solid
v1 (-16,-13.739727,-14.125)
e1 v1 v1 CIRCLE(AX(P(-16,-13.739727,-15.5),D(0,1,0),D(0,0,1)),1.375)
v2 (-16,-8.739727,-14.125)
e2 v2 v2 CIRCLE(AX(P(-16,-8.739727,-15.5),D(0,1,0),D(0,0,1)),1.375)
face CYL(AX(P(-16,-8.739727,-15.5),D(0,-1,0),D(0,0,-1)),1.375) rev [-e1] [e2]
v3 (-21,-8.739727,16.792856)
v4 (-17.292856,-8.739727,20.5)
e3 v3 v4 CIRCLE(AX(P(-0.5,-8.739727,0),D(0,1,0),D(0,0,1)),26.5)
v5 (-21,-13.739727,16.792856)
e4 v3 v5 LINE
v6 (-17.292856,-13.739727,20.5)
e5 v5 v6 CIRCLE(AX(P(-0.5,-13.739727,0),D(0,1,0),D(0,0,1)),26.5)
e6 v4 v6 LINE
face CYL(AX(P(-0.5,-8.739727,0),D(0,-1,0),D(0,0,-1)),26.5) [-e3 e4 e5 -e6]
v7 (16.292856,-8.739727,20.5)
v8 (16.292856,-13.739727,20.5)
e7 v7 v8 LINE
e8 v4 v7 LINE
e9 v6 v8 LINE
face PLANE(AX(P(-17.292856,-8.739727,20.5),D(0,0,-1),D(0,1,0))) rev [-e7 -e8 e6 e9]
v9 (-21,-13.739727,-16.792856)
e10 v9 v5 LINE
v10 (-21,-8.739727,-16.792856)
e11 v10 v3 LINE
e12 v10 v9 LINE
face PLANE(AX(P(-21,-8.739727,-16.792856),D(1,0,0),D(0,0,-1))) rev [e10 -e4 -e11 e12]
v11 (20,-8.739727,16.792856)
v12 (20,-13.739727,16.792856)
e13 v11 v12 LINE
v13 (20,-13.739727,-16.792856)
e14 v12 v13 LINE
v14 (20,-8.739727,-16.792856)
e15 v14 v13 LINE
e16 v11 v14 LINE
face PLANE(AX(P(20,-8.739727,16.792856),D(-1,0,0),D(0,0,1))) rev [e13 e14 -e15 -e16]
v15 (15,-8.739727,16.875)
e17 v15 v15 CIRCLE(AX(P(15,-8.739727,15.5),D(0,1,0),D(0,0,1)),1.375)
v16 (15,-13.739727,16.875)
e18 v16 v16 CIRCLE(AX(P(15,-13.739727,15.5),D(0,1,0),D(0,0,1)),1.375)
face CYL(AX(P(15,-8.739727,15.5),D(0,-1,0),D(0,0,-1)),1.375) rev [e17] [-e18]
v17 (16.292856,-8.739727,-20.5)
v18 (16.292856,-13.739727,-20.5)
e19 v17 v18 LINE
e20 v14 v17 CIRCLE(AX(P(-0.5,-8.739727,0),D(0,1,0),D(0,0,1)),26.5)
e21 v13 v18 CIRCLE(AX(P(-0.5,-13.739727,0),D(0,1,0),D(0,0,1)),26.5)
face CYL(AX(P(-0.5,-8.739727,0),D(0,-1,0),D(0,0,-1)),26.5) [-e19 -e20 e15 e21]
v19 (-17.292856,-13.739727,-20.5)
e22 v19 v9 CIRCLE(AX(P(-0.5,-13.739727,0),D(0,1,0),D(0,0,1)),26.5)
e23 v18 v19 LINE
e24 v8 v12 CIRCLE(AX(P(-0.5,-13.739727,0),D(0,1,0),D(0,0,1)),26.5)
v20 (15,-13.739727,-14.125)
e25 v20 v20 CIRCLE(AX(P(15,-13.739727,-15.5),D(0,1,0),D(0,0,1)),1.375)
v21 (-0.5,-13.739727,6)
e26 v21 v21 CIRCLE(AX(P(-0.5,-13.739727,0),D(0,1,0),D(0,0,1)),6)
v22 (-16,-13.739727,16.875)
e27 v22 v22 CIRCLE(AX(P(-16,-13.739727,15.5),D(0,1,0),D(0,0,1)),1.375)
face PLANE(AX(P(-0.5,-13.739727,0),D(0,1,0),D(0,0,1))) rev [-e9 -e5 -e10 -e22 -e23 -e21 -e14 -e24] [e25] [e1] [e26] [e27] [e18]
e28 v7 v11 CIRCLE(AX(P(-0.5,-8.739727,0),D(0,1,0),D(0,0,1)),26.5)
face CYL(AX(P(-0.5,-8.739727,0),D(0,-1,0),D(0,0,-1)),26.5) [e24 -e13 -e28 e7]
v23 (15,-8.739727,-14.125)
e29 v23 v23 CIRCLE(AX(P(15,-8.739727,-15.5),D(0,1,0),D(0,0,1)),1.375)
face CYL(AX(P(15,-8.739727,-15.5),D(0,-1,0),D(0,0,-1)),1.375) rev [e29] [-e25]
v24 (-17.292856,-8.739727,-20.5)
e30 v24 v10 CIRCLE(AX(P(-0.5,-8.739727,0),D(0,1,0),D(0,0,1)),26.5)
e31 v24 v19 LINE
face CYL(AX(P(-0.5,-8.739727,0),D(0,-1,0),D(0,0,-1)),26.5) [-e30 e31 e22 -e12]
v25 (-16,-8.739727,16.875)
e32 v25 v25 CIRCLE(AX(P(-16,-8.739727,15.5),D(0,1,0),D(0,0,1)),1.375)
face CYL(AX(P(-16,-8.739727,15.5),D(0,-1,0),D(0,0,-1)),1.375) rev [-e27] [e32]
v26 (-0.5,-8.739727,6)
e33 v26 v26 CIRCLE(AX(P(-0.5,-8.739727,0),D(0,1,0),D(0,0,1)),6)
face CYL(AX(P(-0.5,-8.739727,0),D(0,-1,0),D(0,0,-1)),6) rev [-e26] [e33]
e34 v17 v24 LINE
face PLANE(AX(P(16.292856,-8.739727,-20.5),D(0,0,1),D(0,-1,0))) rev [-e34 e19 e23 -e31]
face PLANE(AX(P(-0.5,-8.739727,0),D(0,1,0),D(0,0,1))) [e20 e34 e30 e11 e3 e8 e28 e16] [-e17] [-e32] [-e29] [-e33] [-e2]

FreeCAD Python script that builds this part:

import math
import FreeCAD as App
import Part
import Sketcher

doc = App.newDocument("Part")
body = doc.addObject("PartDesign::Body", "Body")

sketch1 = body.newObject("Sketcher::SketchObject", "Sketch")
sketch1.AttachmentSupport = (doc.getObject("XZ_Plane"), [""])
sketch1.MapMode = "FlatFace"
sketch1.AttachmentOffset = App.Placement(App.Vector(0, 0, 13.739727), App.Rotation())
sketch1.addGeometry(Part.LineSegment(App.Vector(16.3, -20.5, 0), App.Vector(-17.3, -20.5, 0)), False)
sketch1.addGeometry(Part.ArcOfCircle(Part.Circle(App.Vector(-0.5, 0, 0), App.Vector(0, 0, 1), 26.5), math.radians(-140.68), math.radians(-129.32)), False)
sketch1.addGeometry(Part.LineSegment(App.Vector(-21, -16.8, 0), App.Vector(-21, 16.8, 0)), False)
sketch1.addGeometry(Part.ArcOfCircle(Part.Circle(App.Vector(-0.5, 0, 0), App.Vector(0, 0, 1), 26.5), math.radians(129.32), math.radians(140.68)), False)
sketch1.addGeometry(Part.LineSegment(App.Vector(-17.3, 20.5, 0), App.Vector(16.3, 20.5, 0)), False)
sketch1.addGeometry(Part.ArcOfCircle(Part.Circle(App.Vector(-0.5, 0, 0), App.Vector(0, 0, 1), 26.5), math.radians(39.32), math.radians(50.68)), False)
sketch1.addGeometry(Part.LineSegment(App.Vector(20, 16.8, 0), App.Vector(20, -16.8, 0)), False)
sketch1.addGeometry(Part.ArcOfCircle(Part.Circle(App.Vector(-0.5, 0, 0), App.Vector(0, 0, 1), 26.5), math.radians(-50.68), math.radians(-39.32)), False)
sketch1.addGeometry(Part.Circle(App.Vector(-16, 15.5, 0), App.Vector(0, 0, 1), 1.4), False)
sketch1.addGeometry(Part.Circle(App.Vector(15, 15.5, 0), App.Vector(0, 0, 1), 1.4), False)
sketch1.addGeometry(Part.Circle(App.Vector(-16, -15.5, 0), App.Vector(0, 0, 1), 1.4), False)
sketch1.addGeometry(Part.Circle(App.Vector(-0.5, 0, 0), App.Vector(0, 0, 1), 6), False)
sketch1.addGeometry(Part.Circle(App.Vector(15, -15.5, 0), App.Vector(0, 0, 1), 1.4), False)
sketch1.addConstraint(Sketcher.Constraint("Coincident", 0, 2, 1, 2))
sketch1.addConstraint(Sketcher.Constraint("Coincident", 1, 1, 2, 1))
sketch1.addConstraint(Sketcher.Constraint("Coincident", 2, 2, 3, 2))
sketch1.addConstraint(Sketcher.Constraint("Coincident", 3, 1, 4, 1))
sketch1.addConstraint(Sketcher.Constraint("Coincident", 4, 2, 5, 2))
sketch1.addConstraint(Sketcher.Constraint("Coincident", 5, 1, 6, 1))
sketch1.addConstraint(Sketcher.Constraint("Coincident", 6, 2, 7, 2))
sketch1.addConstraint(Sketcher.Constraint("Coincident", 7, 1, 0, 1))
sketch1.addConstraint(Sketcher.Constraint("Horizontal", 0))
sketch1.addConstraint(Sketcher.Constraint("Vertical", 2))
sketch1.addConstraint(Sketcher.Constraint("Horizontal", 4))
sketch1.addConstraint(Sketcher.Constraint("Vertical", 6))
sketch1.addConstraint(Sketcher.Constraint("Coincident", 3, 3, 1, 3))
sketch1.addConstraint(Sketcher.Constraint("Coincident", 5, 3, 1, 3))
sketch1.addConstraint(Sketcher.Constraint("Coincident", 7, 3, 1, 3))
sketch1.addConstraint(Sketcher.Constraint("Coincident", 11, 3, 1, 3))
sketch1.addConstraint(Sketcher.Constraint("Equal", 1, 3))
sketch1.addConstraint(Sketcher.Constraint("Equal", 3, 5))
sketch1.addConstraint(Sketcher.Constraint("Equal", 5, 7))
sketch1.addConstraint(Sketcher.Constraint("Equal", 8, 9))
sketch1.addConstraint(Sketcher.Constraint("Equal", 9, 10))
sketch1.addConstraint(Sketcher.Constraint("Equal", 10, 12))
sketch1.addConstraint(Sketcher.Constraint("Symmetric", 8, 3, 10, 3, -1))
sketch1.addConstraint(Sketcher.Constraint("Symmetric", 9, 3, 12, 3, -1))
sketch1.addConstraint(Sketcher.Constraint("Symmetric", 0, 2, 3, 1, -1))
sketch1.addConstraint(Sketcher.Constraint("Horizontal", 8, 3, 9, 3))
sketch1.addConstraint(Sketcher.Constraint("Horizontal", 2, 2, 5, 1))
sketch1.addConstraint(Sketcher.Constraint("Equal", 4, 2))
sketch1.addConstraint(Sketcher.Constraint("Diameter", 11, 12.0))
sketch1.addConstraint(Sketcher.Constraint("Radius", 1, 26.5))
sketch1.addConstraint(Sketcher.Constraint("Diameter", 8, 2.75))
sketch1.addConstraint(Sketcher.Constraint("DistanceX", 8, 3, -1, 1, 16.0))
sketch1.addConstraint(Sketcher.Constraint("DistanceX", -1, 1, 9, 3, 15.0))
sketch1.addConstraint(Sketcher.Constraint("DistanceX", 1, 1, -1, 1, 21.0))
sketch1.addConstraint(Sketcher.Constraint("DistanceX", -1, 1, 5, 1, 20.0))
sketch1.addConstraint(Sketcher.Constraint("DistanceY", 10, 3, 8, 3, 31.0))
pad1 = body.newObject("PartDesign::Pad", "Pad")
pad1.Profile = sketch1
pad1.Length = 5
pad1.Reversed = True

doc.recompute()
